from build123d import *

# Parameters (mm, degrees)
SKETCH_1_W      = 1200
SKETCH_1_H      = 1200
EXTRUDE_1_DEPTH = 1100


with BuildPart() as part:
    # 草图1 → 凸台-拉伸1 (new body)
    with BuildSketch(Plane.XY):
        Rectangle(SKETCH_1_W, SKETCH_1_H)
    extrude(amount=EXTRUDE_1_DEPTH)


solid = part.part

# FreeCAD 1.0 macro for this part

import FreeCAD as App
import Part
import Sketcher

V = App.Vector

doc = App.newDocument("Part")
params = doc.addObject("Spreadsheet::Sheet", "Params")
for row, (alias, value) in enumerate([
    ("sketch1_width", "1200 mm"),
    ("pad1_length", "1100 mm"),
], start=1):
    params.set(f"A{row}", alias)
    params.set(f"B{row}", "=" + value)
    params.setAlias(f"B{row}", alias)

body = doc.addObject("PartDesign::Body", "Body")

sketch1 = body.newObject("Sketcher::SketchObject", "Sketch")
sketch1.AttachmentSupport = (doc.getObject("XY_Plane"), [""])
sketch1.MapMode = "FlatFace"
sketch1.addGeometry([
    Part.LineSegment(V(-600, 600, 0), V(-600, -600, 0)),
    Part.LineSegment(V(-600, -600, 0), V(600, -600, 0)),
    Part.LineSegment(V(600, -600, 0), V(600, 600, 0)),
    Part.LineSegment(V(600, 600, 0), V(-600, 600, 0)),
], False)
sketch1.addConstraint([
    Sketcher.Constraint("Coincident", 0, 2, 1, 1),
    Sketcher.Constraint("Coincident", 1, 2, 2, 1),
    Sketcher.Constraint("Coincident", 2, 2, 3, 1),
    Sketcher.Constraint("Coincident", 3, 2, 0, 1),
    Sketcher.Constraint("Vertical", 0),
    Sketcher.Constraint("Horizontal", 1),
    Sketcher.Constraint("Vertical", 2),
    Sketcher.Constraint("Horizontal", 3),
    Sketcher.Constraint("Symmetric", 0, 2, 2, 2, -1, 1),
    Sketcher.Constraint("Equal", 3, 0),
    Sketcher.Constraint("DistanceX", 1, 1, 1, 2, 1200.0),
])
sketch1.setExpression("Constraints[10]", "Params.sketch1_width")
pad1 = body.newObject("PartDesign::Pad", "Pad")
pad1.Profile = sketch1
pad1.setExpression("Length", "Params.pad1_length")

doc.recompute()
